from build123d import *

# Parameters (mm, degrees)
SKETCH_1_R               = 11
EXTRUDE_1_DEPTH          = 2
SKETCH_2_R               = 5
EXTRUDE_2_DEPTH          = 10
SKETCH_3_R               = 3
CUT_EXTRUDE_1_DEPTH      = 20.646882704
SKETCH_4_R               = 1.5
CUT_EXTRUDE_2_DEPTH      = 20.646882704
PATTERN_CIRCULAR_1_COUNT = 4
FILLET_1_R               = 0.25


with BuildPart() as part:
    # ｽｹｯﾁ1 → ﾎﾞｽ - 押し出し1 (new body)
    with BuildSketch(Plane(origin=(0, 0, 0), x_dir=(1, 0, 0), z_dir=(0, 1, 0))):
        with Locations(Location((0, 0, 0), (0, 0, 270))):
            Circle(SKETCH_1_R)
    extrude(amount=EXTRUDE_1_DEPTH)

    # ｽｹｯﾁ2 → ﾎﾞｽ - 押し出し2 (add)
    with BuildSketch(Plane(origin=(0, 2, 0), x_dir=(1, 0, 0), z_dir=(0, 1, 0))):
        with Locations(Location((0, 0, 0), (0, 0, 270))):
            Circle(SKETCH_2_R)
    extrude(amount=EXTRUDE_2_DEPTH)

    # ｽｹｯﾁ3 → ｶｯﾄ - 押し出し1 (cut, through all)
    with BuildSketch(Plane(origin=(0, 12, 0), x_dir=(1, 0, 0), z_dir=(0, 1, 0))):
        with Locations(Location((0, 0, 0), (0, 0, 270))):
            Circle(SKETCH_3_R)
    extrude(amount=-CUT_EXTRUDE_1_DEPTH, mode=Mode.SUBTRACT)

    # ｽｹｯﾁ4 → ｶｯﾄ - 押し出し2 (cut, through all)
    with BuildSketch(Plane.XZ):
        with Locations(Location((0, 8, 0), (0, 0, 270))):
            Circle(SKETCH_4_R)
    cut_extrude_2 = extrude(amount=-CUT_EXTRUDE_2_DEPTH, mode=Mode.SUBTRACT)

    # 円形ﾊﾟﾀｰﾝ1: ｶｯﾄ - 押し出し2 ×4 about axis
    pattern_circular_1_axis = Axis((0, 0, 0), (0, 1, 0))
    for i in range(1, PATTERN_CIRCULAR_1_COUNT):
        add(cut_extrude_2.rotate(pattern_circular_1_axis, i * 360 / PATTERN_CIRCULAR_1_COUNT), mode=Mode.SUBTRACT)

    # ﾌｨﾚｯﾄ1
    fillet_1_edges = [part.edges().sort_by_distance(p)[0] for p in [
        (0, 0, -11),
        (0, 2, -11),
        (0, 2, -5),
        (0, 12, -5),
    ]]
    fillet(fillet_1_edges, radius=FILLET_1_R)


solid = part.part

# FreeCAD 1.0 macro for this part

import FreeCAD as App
import Part
import Sketcher

V = App.Vector


def edges_at(feature, points):
    """Names of the edges that pass closest to the given points."""
    edges = feature.Shape.Edges
    near = lambda p: min(range(len(edges)), key=lambda i: edges[i].distToShape(Part.Vertex(*p))[0])
    return sorted({f"Edge{near(p) + 1}" for p in points})

doc = App.newDocument("Part")
params = doc.addObject("Spreadsheet::Sheet", "Params")
for row, (alias, value) in enumerate([
    ("sketch1_diameter", "22 mm"),
    ("pad1_length", "2 mm"),
    ("sketch2_diameter", "10 mm"),
    ("pad2_length", "10 mm"),
    ("sketch3_diameter", "6 mm"),
    ("sketch4_diameter", "3 mm"),
    ("fillet_radius", "0.25 mm"),
], start=1):
    params.set(f"A{row}", alias)
    params.set(f"B{row}", "=" + value)
    params.setAlias(f"B{row}", alias)

body = doc.addObject("PartDesign::Body", "Body")

# Sketch on XZ plane
sketch1 = body.newObject("Sketcher::SketchObject", "Sketch")
sketch1.AttachmentSupport = (doc.getObject("XZ_Plane"), [""])
sketch1.MapMode = "FlatFace"
sketch1.addGeometry(Part.Circle(V(0, 0, 0), V(0, 0, 1), 11), False)
sketch1.addConstraint([
    Sketcher.Constraint("Coincident", 0, 3, -1, 1),
    Sketcher.Constraint("Diameter", 0, 22.0),
])
sketch1.setExpression("Constraints[1]", "Params.sketch1_diameter")
pad1 = body.newObject("PartDesign::Pad", "Pad")
pad1.Profile = sketch1
pad1.setExpression("Length", "Params.pad1_length")
pad1.Reversed = True

# Sketch on XZ plane
sketch2 = body.newObject("Sketcher::SketchObject", "Sketch001")
sketch2.AttachmentSupport = (doc.getObject("XZ_Plane"), [""])
sketch2.MapMode = "FlatFace"
sketch2.AttachmentOffset = App.Placement(V(0, 0, -2), App.Rotation())
sketch2.addGeometry(Part.Circle(V(0, 0, 0), V(0, 0, 1), 5), False)
sketch2.addConstraint([
    Sketcher.Constraint("Coincident", 0, 3, -1, 1),
    Sketcher.Constraint("Diameter", 0, 10.0),
])
sketch2.setExpression("Constraints[1]", "Params.sketch2_diameter")
pad2 = body.newObject("PartDesign::Pad", "Pad001")
pad2.Profile = sketch2
pad2.setExpression("Length", "Params.pad2_length")
pad2.Reversed = True

# Sketch on XZ plane
sketch3 = body.newObject("Sketcher::SketchObject", "Sketch002")
sketch3.AttachmentSupport = (doc.getObject("XZ_Plane"), [""])
sketch3.MapMode = "FlatFace"
sketch3.AttachmentOffset = App.Placement(V(0, 0, -12), App.Rotation())
sketch3.addGeometry(Part.Circle(V(0, 0, 0), V(0, 0, 1), 3), False)
sketch3.addConstraint([
    Sketcher.Constraint("Coincident", 0, 3, -1, 1),
    Sketcher.Constraint("Diameter", 0, 6.0),
])
sketch3.setExpression("Constraints[1]", "Params.sketch3_diameter")
pocket1 = body.newObject("PartDesign::Pocket", "Pocket")
pocket1.Profile = sketch3
pocket1.Type = "ThroughAll"
pocket1.Reversed = True

# Sketch on XZ plane
sketch4 = body.newObject("Sketcher::SketchObject", "Sketch003")
sketch4.AttachmentSupport = (doc.getObject("XZ_Plane"), [""])
sketch4.MapMode = "FlatFace"
sketch4.addGeometry(Part.Circle(V(0, 8, 0), V(0, 0, 1), 1.5), False)
sketch4.addConstraint([
    Sketcher.Constraint("PointOnObject", 0, 3, -2),
    Sketcher.Constraint("Diameter", 0, 3.0),
    Sketcher.Constraint("DistanceY", -1, 1, 0, 3, 8.0),
])
sketch4.setExpression("Constraints[1]", "Params.sketch4_diameter")
pocket2 = body.newObject("PartDesign::Pocket", "Pocket001")
pocket2.Profile = sketch4
pocket2.Type = "ThroughAll"
doc.recompute()

polarpattern = body.newObject("PartDesign::PolarPattern", "PolarPattern")
polarpattern.Originals = [pocket2]
polarpattern.Axis = (doc.getObject("Y_Axis"), [""])
polarpattern.Angle = 360
polarpattern.Occurrences = 4
body.Tip = polarpattern
doc.recompute()

fillet = body.newObject("PartDesign::Fillet", "Fillet")
fillet.Base = (polarpattern, edges_at(polarpattern, [
    (0, 0, -11),
    (0, 2, -11),
    (0, 2, -5),
    (0, 12, -5),
]))
fillet.setExpression("Radius", "Params.fillet_radius")

doc.recompute()
